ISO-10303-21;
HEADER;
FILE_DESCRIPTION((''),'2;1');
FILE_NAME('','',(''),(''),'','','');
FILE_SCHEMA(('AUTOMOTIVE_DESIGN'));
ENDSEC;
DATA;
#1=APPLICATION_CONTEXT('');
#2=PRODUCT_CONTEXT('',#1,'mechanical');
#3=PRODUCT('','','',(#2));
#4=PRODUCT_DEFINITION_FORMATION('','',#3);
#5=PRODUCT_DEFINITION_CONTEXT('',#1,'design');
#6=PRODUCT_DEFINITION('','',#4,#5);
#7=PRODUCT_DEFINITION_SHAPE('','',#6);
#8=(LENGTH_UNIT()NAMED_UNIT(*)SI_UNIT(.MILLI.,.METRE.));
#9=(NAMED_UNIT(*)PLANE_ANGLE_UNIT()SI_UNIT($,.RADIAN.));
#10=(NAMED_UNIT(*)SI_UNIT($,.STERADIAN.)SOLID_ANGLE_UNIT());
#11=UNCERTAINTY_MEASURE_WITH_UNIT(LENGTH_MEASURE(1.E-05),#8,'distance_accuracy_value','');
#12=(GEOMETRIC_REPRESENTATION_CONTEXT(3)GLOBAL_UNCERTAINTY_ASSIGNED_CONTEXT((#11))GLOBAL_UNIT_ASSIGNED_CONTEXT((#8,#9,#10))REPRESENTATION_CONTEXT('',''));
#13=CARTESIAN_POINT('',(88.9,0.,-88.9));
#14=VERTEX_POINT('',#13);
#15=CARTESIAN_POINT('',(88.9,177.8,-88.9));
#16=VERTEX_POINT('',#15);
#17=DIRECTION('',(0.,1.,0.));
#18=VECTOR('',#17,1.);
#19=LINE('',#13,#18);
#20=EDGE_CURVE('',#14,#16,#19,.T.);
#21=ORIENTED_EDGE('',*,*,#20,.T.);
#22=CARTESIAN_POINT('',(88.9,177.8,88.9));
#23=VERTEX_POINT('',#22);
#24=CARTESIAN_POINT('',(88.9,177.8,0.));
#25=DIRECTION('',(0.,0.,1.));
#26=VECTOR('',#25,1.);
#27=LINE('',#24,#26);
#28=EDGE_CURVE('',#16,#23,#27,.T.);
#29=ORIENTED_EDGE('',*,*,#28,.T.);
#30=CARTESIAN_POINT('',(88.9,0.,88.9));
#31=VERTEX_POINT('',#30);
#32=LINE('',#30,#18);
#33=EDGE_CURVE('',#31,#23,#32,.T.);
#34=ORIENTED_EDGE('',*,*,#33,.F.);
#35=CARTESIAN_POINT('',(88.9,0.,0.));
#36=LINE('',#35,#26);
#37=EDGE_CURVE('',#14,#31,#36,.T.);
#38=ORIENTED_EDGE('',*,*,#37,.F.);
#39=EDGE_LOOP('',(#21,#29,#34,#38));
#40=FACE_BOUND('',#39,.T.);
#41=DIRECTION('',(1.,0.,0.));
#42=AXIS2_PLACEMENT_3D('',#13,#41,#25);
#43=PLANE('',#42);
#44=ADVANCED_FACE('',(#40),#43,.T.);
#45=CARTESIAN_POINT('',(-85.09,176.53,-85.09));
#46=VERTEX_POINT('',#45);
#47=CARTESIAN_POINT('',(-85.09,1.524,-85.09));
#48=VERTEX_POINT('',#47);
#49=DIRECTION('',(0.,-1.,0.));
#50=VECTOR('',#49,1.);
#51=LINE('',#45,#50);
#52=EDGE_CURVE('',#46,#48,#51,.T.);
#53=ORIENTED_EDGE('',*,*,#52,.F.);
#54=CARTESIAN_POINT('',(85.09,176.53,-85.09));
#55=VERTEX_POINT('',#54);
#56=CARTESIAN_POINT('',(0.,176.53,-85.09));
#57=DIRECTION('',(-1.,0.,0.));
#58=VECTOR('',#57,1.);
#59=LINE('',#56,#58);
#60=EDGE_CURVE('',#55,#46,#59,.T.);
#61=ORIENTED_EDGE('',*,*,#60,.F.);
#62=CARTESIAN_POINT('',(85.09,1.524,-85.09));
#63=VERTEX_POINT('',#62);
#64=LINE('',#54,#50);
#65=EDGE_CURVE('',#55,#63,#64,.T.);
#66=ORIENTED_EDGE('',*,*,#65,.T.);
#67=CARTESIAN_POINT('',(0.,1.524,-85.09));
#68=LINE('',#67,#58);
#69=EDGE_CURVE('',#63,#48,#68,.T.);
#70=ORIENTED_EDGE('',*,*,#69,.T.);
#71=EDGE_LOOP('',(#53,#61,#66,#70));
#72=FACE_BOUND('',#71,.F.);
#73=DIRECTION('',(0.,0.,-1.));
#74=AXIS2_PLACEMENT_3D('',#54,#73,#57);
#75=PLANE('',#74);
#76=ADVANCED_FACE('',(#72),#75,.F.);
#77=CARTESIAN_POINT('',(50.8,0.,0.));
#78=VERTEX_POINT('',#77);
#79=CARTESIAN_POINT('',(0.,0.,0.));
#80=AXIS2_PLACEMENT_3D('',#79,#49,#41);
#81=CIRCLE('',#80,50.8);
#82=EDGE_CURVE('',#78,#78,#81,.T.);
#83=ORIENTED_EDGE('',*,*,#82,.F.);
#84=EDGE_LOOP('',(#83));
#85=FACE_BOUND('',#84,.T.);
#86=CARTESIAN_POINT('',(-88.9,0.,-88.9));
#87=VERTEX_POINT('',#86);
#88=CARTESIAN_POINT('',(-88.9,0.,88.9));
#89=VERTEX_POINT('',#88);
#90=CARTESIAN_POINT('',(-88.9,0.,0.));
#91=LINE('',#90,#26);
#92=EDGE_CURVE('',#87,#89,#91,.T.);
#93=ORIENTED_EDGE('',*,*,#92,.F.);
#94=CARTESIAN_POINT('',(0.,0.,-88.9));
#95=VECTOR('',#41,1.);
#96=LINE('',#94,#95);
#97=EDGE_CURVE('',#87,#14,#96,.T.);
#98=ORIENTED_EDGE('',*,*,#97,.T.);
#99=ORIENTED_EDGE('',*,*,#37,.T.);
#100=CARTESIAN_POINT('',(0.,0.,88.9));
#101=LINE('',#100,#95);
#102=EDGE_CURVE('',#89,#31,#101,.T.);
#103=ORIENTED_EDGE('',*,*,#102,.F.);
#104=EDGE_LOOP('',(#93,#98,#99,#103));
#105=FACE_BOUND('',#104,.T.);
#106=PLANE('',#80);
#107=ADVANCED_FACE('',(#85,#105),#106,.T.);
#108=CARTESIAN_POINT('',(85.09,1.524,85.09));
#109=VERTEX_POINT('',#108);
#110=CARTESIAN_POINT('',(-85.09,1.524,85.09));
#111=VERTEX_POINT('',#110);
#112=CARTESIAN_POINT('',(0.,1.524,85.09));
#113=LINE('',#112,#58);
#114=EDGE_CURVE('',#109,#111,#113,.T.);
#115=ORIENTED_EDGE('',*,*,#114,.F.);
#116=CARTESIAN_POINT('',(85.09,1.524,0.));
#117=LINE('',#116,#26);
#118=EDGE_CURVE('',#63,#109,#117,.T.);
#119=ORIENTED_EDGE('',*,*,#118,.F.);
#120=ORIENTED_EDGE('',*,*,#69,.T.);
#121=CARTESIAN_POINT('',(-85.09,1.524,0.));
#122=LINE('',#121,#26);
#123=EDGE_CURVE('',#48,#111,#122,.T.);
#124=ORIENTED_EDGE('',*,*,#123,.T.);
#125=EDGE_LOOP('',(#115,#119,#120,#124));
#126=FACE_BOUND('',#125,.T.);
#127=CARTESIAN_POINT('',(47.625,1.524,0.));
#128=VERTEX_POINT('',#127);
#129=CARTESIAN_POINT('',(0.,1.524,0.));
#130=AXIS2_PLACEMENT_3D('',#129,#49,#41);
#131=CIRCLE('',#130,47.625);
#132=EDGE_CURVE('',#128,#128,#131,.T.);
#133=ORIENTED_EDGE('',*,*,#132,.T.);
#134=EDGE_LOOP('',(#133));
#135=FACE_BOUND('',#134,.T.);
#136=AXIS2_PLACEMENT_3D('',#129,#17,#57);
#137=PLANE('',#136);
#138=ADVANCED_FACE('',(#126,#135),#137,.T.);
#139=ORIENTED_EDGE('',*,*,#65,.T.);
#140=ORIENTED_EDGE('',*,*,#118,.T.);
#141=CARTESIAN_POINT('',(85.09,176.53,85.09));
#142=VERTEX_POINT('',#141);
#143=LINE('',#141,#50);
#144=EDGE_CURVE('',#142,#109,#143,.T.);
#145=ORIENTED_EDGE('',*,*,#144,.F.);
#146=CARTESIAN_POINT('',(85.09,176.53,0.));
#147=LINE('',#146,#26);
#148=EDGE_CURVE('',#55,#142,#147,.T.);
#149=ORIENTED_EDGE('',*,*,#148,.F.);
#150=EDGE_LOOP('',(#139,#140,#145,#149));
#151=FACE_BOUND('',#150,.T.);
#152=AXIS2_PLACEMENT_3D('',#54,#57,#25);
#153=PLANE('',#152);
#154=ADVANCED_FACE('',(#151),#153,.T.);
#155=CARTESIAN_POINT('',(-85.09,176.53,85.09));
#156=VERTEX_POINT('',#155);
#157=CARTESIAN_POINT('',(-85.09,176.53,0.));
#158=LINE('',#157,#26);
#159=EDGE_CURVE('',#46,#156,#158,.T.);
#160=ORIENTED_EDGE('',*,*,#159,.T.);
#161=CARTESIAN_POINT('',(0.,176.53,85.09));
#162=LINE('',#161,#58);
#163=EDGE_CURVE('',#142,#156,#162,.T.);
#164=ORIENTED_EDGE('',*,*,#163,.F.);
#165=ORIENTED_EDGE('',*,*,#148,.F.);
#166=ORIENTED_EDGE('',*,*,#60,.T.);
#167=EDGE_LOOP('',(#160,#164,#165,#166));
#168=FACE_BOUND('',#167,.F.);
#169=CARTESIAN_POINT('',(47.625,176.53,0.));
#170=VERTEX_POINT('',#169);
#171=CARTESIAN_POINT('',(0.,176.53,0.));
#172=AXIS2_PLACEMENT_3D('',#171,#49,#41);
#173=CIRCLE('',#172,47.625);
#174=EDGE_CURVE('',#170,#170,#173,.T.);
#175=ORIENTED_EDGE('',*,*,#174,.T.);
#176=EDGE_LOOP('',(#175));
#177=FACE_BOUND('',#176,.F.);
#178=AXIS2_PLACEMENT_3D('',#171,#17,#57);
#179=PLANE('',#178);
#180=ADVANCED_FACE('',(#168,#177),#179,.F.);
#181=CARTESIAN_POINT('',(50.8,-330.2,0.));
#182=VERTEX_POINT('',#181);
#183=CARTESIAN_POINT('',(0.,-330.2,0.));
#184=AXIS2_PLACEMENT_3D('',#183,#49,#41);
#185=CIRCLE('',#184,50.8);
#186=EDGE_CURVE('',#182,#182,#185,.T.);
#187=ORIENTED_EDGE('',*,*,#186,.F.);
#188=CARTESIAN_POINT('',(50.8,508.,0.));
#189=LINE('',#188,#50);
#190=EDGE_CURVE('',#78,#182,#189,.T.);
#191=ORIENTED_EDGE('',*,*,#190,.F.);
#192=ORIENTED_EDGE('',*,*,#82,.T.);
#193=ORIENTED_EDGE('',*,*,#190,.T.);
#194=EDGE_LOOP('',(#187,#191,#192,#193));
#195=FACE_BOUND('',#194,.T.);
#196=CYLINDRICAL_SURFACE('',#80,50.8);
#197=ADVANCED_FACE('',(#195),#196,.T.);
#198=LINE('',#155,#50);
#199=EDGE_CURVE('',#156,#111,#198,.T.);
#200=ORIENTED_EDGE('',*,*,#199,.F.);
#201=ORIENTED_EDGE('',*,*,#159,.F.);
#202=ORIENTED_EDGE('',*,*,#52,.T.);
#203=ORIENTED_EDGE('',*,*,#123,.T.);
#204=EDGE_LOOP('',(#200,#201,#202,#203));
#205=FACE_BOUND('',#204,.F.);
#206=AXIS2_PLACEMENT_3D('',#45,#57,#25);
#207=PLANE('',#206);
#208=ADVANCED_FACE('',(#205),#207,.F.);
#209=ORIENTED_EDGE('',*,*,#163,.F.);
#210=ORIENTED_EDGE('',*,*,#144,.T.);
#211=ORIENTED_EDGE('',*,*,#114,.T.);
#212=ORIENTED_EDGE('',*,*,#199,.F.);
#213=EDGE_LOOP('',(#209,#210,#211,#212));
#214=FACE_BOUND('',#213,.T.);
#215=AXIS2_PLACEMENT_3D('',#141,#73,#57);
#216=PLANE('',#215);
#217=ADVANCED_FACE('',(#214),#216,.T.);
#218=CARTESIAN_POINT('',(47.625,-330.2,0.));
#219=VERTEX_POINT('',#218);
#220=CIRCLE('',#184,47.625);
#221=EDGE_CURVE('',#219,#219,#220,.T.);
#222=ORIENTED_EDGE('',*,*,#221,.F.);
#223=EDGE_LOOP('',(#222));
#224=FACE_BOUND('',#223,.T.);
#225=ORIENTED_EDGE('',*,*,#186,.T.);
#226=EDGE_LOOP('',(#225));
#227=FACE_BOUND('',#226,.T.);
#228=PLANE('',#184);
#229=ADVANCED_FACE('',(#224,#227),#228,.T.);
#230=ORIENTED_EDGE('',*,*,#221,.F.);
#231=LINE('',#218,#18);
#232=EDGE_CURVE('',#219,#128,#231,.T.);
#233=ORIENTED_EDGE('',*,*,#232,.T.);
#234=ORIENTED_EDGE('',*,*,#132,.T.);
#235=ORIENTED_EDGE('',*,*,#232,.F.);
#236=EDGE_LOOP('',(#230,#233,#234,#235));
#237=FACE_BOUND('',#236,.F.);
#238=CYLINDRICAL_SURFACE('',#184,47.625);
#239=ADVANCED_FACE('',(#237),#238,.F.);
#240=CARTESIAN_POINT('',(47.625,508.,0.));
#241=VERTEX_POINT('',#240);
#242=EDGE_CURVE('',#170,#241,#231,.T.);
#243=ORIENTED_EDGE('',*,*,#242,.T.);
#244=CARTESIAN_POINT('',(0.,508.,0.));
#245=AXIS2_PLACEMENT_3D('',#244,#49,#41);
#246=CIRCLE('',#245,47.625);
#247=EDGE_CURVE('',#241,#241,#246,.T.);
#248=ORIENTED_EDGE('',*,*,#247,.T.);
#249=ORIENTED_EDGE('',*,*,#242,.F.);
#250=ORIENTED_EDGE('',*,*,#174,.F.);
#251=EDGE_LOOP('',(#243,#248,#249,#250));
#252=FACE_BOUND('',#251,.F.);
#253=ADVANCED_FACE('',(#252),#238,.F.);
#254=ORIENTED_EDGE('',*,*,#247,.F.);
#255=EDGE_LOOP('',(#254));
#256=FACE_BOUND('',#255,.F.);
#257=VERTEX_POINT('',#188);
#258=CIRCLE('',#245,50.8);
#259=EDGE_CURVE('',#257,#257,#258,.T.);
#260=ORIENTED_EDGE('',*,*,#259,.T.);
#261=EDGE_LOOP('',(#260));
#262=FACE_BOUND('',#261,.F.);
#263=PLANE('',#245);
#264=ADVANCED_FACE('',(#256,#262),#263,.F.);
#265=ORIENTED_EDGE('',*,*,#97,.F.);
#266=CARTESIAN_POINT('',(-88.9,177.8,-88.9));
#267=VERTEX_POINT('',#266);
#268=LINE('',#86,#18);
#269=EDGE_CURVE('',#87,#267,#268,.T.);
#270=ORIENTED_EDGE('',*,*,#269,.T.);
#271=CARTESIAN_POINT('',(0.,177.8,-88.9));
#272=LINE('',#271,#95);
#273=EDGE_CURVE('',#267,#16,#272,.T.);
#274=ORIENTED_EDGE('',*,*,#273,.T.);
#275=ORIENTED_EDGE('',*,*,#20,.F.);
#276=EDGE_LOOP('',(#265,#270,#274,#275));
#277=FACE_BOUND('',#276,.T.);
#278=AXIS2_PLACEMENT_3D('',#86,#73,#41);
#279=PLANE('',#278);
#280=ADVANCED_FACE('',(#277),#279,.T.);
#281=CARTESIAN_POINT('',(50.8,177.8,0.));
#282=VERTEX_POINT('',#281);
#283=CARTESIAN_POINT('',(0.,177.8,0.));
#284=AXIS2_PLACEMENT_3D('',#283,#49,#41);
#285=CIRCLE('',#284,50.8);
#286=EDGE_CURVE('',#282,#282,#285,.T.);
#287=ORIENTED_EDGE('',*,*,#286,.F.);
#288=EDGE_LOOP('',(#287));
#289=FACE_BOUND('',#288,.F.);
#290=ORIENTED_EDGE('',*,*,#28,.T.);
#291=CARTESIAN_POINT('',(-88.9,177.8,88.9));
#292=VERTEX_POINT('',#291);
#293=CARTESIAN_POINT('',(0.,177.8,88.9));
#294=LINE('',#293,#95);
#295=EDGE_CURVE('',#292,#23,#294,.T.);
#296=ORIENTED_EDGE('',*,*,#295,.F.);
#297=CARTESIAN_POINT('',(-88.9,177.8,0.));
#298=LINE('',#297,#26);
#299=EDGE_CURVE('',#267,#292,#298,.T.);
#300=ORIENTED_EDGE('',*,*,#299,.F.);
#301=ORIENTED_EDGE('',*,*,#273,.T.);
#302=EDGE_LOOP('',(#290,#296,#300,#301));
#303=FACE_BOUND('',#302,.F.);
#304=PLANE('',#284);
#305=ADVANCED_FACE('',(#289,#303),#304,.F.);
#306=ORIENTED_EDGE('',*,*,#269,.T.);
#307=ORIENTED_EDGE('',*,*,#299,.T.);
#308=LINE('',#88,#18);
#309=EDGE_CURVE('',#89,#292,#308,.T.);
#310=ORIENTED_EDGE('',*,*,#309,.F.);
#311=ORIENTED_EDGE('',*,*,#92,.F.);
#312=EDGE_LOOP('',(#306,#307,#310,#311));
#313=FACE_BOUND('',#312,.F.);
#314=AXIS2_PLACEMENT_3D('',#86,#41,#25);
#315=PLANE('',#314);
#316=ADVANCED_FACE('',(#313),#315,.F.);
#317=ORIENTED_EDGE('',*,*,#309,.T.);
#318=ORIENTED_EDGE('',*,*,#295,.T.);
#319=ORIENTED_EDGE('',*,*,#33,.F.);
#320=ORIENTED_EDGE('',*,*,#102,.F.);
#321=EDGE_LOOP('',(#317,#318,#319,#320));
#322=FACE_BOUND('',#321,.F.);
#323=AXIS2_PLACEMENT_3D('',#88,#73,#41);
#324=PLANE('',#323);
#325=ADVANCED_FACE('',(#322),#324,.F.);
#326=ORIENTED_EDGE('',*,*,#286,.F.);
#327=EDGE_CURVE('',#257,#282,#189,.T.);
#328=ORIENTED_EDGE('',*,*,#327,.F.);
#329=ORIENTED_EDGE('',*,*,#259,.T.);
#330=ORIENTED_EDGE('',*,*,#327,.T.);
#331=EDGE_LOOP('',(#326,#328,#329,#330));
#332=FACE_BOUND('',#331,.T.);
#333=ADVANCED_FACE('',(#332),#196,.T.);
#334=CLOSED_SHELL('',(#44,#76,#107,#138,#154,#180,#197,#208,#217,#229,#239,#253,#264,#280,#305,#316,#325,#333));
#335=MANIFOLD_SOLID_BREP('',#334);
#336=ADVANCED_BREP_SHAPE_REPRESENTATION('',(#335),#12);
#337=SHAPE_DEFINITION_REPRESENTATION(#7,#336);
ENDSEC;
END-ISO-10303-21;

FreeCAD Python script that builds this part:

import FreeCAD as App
import Part
import Sketcher
from FreeCAD import Vector
Q = App.Units.Quantity


def add_polygon(sketch, points):
    """Adds a closed chain of lines whose ends are joined by coincident constraints."""
    first, n = sketch.GeometryCount, len(points)
    for a, b in zip(points, points[1:] + points[:1]):
        sketch.addGeometry(Part.LineSegment(App.Vector(*a, 0), App.Vector(*b, 0)), False)
    for i in range(n):
        sketch.addConstraint(Sketcher.Constraint("Coincident", first + i, 2, first + (i + 1) % n, 1))

doc = App.newDocument("Part")
params = doc.addObject("Spreadsheet::Sheet", "Params")
for row, (alias, value) in enumerate([
    ("sketch1_diameter", "4 in"),
    ("pad1_length", "13 in"),
    ("pad1_length2", "20 in"),
    ("sketch2_width", "7 in"),
    ("pad2_length", "7 in"),
    ("sketch3_width", "6.7 in"),
    ("pocket1_length", "6.89 in"),
    ("sketch4_diameter", "3.75 in"),
    ("pocket2_length", "36 in"),
], start=1):
    params.set(f"A{row}", alias)
    params.set(f"B{row}", "=" + value)
    params.setAlias(f"B{row}", alias)

body = doc.addObject("PartDesign::Body", "Body")

# Sketch on XZ plane
sketch1 = body.newObject("Sketcher::SketchObject", "Sketch")
sketch1.AttachmentSupport = (doc.getObject("XZ_Plane"), [""])
sketch1.MapMode = "FlatFace"
sketch1.addGeometry(Part.Circle(Vector(0, 0, 0), Vector(0, 0, 1), 50.8), False)
sketch1.addConstraint([
    Sketcher.Constraint("Coincident", 0, 3, -1, 1),
    Sketcher.Constraint("Diameter", 0, Q("4 in")),
])
sketch1.setExpression("Constraints[1]", "Params.sketch1_diameter")
pad1 = body.newObject("PartDesign::Pad", "Pad")
pad1.Profile = sketch1
pad1.Type = "TwoLengths"
pad1.setExpression("Length", "Params.pad1_length")
pad1.setExpression("Length2", "Params.pad1_length2")

# Sketch on XZ plane
sketch2 = body.newObject("Sketcher::SketchObject", "Sketch001")
sketch2.AttachmentSupport = (doc.getObject("XZ_Plane"), [""])
sketch2.MapMode = "FlatFace"
add_polygon(sketch2, [(-88.9, 88.9), (-88.9, -88.9), (88.9, -88.9), (88.9, 88.9)])  # lines 0-3
sketch2.addConstraint([
    Sketcher.Constraint("Vertical", 0),
    Sketcher.Constraint("Horizontal", 1),
    Sketcher.Constraint("Vertical", 2),
    Sketcher.Constraint("Horizontal", 3),
    Sketcher.Constraint("Symmetric", 0, 2, 2, 2, -1, 1),
    Sketcher.Constraint("Equal", 3, 0),
    Sketcher.Constraint("DistanceX", 1, 1, 1, 2, Q("7 in")),
])
sketch2.setExpression("Constraints[10]", "Params.sketch2_width")
pad2 = body.newObject("PartDesign::Pad", "Pad001")
pad2.Profile = sketch2
pad2.setExpression("Length", "Params.pad2_length")
pad2.Reversed = True

# Sketch on XZ plane
sketch3 = body.newObject("Sketcher::SketchObject", "Sketch002")
sketch3.AttachmentSupport = (doc.getObject("XZ_Plane"), [""])
sketch3.MapMode = "FlatFace"
sketch3.AttachmentOffset = App.Placement(Vector(0, 0, -6.95 * 25.4), App.Rotation())
add_polygon(sketch3, [(85.09, 85.09), (85.09, -85.09), (-85.09, -85.09), (-85.09, 85.09)])  # lines 0-3
sketch3.addConstraint([
    Sketcher.Constraint("Vertical", 0),
    Sketcher.Constraint("Horizontal", 1),
    Sketcher.Constraint("Vertical", 2),
    Sketcher.Constraint("Horizontal", 3),
    Sketcher.Constraint("Symmetric", 0, 2, 2, 2, -1, 1),
    Sketcher.Constraint("Equal", 3, 0),
    Sketcher.Constraint("DistanceX", 1, 2, 1, 1, Q("6.7 in")),
])
sketch3.setExpression("Constraints[10]", "Params.sketch3_width")
pocket1 = body.newObject("PartDesign::Pocket", "Pocket")
pocket1.Profile = sketch3
pocket1.setExpression("Length", "Params.pocket1_length")
pocket1.Reversed = True

# Sketch on XZ plane
sketch4 = body.newObject("Sketcher::SketchObject", "Sketch003")
sketch4.AttachmentSupport = (doc.getObject("XZ_Plane"), [""])
sketch4.MapMode = "FlatFace"
sketch4.AttachmentOffset = App.Placement(Vector(0, 0, 13 * 25.4), App.Rotation())
sketch4.addGeometry(Part.Circle(Vector(0, 0, 0), Vector(0, 0, 1), 47.625), False)
sketch4.addConstraint([
    Sketcher.Constraint("Coincident", 0, 3, -1, 1),
    Sketcher.Constraint("Diameter", 0, Q("3.75 in")),
])
sketch4.setExpression("Constraints[1]", "Params.sketch4_diameter")
pocket2 = body.newObject("PartDesign::Pocket", "Pocket001")
pocket2.Profile = sketch4
pocket2.setExpression("Length", "Params.pocket2_length")

doc.recompute()
